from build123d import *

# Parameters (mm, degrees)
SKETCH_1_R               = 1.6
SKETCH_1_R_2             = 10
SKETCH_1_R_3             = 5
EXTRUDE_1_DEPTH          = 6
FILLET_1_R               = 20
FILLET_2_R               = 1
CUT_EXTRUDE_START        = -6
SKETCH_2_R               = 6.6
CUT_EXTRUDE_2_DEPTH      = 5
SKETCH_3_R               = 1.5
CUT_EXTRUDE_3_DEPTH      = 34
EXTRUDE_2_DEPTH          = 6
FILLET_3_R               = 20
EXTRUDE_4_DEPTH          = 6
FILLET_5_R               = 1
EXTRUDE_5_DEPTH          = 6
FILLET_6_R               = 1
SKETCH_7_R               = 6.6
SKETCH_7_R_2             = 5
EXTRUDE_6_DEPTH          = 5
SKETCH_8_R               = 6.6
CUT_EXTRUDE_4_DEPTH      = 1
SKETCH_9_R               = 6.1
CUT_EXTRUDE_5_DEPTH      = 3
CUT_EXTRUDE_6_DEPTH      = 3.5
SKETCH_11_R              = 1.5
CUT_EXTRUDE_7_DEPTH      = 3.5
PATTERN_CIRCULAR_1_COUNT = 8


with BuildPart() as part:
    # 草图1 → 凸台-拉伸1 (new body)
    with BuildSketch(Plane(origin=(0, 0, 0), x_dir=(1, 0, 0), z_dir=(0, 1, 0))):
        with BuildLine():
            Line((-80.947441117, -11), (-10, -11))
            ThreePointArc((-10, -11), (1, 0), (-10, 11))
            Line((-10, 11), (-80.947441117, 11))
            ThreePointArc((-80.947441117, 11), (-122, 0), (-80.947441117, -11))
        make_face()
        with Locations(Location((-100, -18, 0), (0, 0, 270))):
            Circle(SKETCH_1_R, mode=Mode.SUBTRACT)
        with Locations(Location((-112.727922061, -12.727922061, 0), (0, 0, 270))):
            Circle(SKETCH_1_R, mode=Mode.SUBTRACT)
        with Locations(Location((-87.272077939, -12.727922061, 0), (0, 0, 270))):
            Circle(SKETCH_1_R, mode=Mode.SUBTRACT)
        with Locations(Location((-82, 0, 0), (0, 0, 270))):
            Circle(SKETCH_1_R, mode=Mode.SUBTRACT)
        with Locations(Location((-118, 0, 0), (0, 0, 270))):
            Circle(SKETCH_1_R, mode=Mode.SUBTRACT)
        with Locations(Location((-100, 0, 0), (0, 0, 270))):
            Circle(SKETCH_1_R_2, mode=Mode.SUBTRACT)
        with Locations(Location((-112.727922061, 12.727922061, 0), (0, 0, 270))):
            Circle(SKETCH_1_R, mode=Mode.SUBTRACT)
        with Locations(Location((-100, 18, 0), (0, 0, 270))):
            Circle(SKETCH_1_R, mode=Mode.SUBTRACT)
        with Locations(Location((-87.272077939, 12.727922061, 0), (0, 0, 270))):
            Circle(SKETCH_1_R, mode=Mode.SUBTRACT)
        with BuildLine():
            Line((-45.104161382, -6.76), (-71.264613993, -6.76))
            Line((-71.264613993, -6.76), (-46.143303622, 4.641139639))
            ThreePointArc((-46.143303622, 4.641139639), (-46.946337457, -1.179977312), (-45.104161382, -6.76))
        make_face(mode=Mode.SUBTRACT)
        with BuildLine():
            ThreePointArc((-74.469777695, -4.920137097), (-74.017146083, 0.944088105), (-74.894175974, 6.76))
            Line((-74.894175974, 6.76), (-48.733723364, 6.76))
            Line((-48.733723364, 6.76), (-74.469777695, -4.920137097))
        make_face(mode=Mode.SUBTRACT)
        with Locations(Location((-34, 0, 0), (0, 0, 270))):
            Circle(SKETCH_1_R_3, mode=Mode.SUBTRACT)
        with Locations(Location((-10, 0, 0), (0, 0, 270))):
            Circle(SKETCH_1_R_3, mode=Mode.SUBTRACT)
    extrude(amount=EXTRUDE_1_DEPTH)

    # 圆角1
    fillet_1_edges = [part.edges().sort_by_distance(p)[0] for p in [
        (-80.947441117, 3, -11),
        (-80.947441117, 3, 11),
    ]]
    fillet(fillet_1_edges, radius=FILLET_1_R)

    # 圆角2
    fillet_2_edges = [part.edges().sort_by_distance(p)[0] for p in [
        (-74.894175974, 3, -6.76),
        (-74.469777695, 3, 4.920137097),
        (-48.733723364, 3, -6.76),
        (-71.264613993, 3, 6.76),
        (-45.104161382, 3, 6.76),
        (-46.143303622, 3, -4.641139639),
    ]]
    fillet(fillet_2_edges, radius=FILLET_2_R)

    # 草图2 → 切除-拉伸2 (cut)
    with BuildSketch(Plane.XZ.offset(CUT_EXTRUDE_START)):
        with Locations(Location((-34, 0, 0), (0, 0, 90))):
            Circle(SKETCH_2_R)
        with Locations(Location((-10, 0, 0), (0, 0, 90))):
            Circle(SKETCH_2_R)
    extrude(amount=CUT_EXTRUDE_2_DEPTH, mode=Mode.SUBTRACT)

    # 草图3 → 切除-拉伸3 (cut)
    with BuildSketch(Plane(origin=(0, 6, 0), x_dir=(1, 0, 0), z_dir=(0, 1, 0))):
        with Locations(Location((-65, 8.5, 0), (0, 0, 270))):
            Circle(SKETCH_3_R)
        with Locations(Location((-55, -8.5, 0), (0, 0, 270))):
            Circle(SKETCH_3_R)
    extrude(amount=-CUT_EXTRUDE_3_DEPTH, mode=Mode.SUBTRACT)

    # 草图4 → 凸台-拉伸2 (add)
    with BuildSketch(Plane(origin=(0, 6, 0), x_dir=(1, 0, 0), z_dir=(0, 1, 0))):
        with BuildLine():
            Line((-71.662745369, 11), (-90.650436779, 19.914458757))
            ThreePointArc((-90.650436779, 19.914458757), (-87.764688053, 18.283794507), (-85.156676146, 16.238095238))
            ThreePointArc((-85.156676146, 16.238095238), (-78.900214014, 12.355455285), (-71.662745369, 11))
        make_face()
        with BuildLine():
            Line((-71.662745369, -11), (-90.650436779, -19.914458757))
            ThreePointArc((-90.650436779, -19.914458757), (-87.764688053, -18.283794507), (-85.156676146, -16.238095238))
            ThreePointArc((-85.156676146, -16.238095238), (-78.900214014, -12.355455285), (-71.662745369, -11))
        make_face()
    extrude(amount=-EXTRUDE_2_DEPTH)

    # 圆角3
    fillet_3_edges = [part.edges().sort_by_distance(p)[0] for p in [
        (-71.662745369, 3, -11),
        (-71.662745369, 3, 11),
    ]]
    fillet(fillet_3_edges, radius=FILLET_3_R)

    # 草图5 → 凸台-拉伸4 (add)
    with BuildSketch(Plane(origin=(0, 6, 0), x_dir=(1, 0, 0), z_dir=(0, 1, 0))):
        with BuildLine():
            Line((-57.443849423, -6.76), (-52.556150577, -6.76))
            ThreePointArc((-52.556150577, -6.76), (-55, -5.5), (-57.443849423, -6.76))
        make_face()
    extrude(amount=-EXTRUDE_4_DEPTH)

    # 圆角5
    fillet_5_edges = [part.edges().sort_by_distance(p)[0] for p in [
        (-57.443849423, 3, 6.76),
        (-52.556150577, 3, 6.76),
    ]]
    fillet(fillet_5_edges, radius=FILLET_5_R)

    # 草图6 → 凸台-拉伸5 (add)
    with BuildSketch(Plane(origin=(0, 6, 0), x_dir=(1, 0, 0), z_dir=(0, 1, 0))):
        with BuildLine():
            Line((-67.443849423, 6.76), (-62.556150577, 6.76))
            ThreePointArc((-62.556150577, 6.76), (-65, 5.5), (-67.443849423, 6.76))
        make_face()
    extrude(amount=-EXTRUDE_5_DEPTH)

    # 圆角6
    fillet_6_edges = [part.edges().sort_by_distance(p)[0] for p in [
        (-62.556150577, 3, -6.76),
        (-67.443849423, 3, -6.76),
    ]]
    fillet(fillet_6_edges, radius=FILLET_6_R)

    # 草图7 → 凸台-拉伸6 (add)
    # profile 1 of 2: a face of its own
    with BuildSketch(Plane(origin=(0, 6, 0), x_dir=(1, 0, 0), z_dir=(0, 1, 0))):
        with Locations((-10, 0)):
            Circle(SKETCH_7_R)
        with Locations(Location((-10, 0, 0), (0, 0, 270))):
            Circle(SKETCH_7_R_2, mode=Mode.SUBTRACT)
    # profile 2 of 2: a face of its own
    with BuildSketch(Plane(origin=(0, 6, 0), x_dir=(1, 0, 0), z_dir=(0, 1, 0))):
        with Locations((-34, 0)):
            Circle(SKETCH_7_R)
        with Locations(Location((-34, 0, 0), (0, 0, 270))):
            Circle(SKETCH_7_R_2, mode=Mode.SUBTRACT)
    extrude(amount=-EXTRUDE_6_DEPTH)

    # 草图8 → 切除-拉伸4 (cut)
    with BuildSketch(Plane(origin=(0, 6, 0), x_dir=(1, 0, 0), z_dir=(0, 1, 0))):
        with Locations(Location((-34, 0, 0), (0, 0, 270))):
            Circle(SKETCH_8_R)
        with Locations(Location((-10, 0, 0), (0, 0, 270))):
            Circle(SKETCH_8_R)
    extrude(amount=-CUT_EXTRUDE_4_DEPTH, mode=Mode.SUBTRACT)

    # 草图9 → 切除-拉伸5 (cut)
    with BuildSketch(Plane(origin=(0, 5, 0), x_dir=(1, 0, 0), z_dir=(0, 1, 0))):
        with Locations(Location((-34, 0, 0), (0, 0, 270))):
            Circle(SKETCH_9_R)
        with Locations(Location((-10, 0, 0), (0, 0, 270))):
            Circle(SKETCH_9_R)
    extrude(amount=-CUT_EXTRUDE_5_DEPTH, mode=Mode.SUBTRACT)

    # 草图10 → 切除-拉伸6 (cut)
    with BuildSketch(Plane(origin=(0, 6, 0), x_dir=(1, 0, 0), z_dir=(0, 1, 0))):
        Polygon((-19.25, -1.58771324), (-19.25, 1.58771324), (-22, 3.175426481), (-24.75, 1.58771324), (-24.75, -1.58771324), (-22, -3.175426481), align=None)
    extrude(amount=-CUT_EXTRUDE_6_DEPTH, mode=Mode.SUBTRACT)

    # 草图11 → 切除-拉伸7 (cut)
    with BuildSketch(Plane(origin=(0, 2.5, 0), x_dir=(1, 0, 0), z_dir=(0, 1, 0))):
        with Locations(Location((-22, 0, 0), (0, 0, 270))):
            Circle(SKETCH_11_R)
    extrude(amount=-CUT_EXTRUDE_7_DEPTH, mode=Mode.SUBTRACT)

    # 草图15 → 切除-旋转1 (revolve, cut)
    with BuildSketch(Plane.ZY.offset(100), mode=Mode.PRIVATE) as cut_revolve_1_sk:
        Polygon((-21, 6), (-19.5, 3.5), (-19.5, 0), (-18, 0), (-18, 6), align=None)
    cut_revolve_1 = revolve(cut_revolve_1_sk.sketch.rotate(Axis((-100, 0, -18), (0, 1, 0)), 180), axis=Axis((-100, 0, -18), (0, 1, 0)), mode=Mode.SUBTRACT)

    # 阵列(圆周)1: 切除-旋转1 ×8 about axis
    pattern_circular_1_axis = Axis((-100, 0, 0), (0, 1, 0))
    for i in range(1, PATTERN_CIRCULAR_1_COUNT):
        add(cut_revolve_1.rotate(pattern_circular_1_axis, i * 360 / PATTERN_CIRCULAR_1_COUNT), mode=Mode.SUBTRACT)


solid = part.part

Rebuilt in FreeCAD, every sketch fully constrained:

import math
import FreeCAD as App
import Part
import Sketcher
Q = App.Units.Quantity


def edges_at(feature, points):
    """Names of the edges that pass closest to the given points."""
    edges = feature.Shape.Edges
    near = lambda p: min(range(len(edges)), key=lambda i: edges[i].distToShape(Part.Vertex(*p))[0])
    return sorted({f"Edge{near(p) + 1}" for p in points})

doc = App.newDocument("Part")
params = doc.addObject("Spreadsheet::Sheet", "Params")
for row, (alias, value) in enumerate([
    ("sketch1_diameter", "20 mm"),
    ("sketch1_diameter2", "10 mm"),
    ("sketch1_radius", "11 mm"),
    ("sketch1_radius2", "22 mm"),
    ("sketch1_radius3", "13 mm"),
    ("pad1_length", "6 mm"),
    ("fillet_radius", "20 mm"),
    ("fillet2_radius", "1 mm"),
    ("sketch2_diameter", "13.2 mm"),
    ("pocket1_length", "5 mm"),
    ("sketch3_diameter", "3 mm"),
    ("pocket2_length", "34 mm"),
    ("sketch4_radius", "22 mm"),
    ("sketch4_radius2", "20 mm"),
    ("pad2_length", "6 mm"),
    ("fillet3_radius", "20 mm"),
    ("sketch5_radius", "3 mm"),
    ("pad3_length", "6 mm"),
    ("fillet4_radius", "1 mm"),
    ("sketch6_radius", "3 mm"),
    ("pad4_length", "6 mm"),
    ("fillet5_radius", "1 mm"),
    ("sketch7_diameter", "10 mm"),
    ("sketch7_diameter2", "13.2 mm"),
    ("pad5_length", "5 mm"),
    ("sketch8_diameter", "13.2 mm"),
    ("pocket3_length", "1 mm"),
    ("sketch9_diameter", "12.2 mm"),
    ("pocket4_length", "3 mm"),
    ("pocket5_length", "3.5 mm"),
    ("sketch11_diameter", "3 mm"),
    ("pocket6_length", "3.5 mm"),
    ("sketch12_width", "6 mm"),
    ("sketch12_height", "3 mm"),
    ("sketch12_width2", "3.5 mm"),
    ("sketch12_height2", "1.5 mm"),
    ("groove_angle", "360 deg"),
], start=1):
    params.set(f"A{row}", alias)
    params.set(f"B{row}", "=" + value)
    params.setAlias(f"B{row}", alias)

body = doc.addObject("PartDesign::Body", "Body")

sketch1 = body.newObject("Sketcher::SketchObject", "Sketch")
sketch1.AttachmentSupport = (doc.getObject("XZ_Plane"), [""])
sketch1.MapMode = "FlatFace"
sketch1.addGeometry([
    Part.LineSegment(App.Vector(-80.947441, 11, 0), App.Vector(-10, 11, 0)),
    Part.ArcOfCircle(Part.Circle(App.Vector(-10, 0, 0), App.Vector(0, 0, 1), 11), math.radians(-90), math.radians(90)),
    Part.LineSegment(App.Vector(-10, -11, 0), App.Vector(-80.947441, -11, 0)),
    Part.ArcOfCircle(Part.Circle(App.Vector(-100, 0, 0), App.Vector(0, 0, 1), 22), math.radians(30), math.radians(330)),
    Part.Circle(App.Vector(-100, 18, 0), App.Vector(0, 0, 1), 1.6),
    Part.Circle(App.Vector(-112.727922, 12.727922, 0), App.Vector(0, 0, 1), 1.6),
    Part.Circle(App.Vector(-87.272078, 12.727922, 0), App.Vector(0, 0, 1), 1.6),
    Part.ArcOfCircle(Part.Circle(App.Vector(-34, 0, 0), App.Vector(0, 0, 1), 13), math.radians(148.667748), math.radians(200.916729)),
    Part.LineSegment(App.Vector(-45.104161, 6.76, 0), App.Vector(-71.264614, 6.76, 0)),
    Part.LineSegment(App.Vector(-71.264614, 6.76, 0), App.Vector(-46.143304, -4.64114, 0)),
    Part.Circle(App.Vector(-118, 0, 0), App.Vector(0, 0, 1), 1.6),
    Part.Circle(App.Vector(-100, 0, 0), App.Vector(0, 0, 1), 10),
    Part.Circle(App.Vector(-82, 0, 0), App.Vector(0, 0, 1), 1.6),
    Part.Circle(App.Vector(-112.727922, -12.727922, 0), App.Vector(0, 0, 1), 1.6),
    Part.Circle(App.Vector(-100, -18, 0), App.Vector(0, 0, 1), 1.6),
    Part.Circle(App.Vector(-87.272078, -12.727922, 0), App.Vector(0, 0, 1), 1.6),
    Part.LineSegment(App.Vector(-48.733723, -6.76, 0), App.Vector(-74.469778, 4.920137, 0)),
    Part.ArcOfCircle(Part.Circle(App.Vector(-100, 0, 0), App.Vector(0, 0, 1), 26), math.radians(-15.070062), math.radians(10.908204)),
    Part.LineSegment(App.Vector(-74.894176, -6.76, 0), App.Vector(-48.733723, -6.76, 0)),
    Part.Circle(App.Vector(-34, 0, 0), App.Vector(0, 0, 1), 5),
    Part.Circle(App.Vector(-10, 0, 0), App.Vector(0, 0, 1), 5),
], False)
sketch1.addConstraint([
    Sketcher.Constraint("Tangent", 0, 2, 1, 2),
    Sketcher.Constraint("Tangent", 1, 1, 2, 1),
    Sketcher.Constraint("Coincident", 2, 2, 3, 2),
    Sketcher.Constraint("Coincident", 3, 1, 0, 1),
    Sketcher.Constraint("Coincident", 7, 1, 8, 1),
    Sketcher.Constraint("Coincident", 8, 2, 9, 1),
    Sketcher.Constraint("Coincident", 9, 2, 7, 2),
    Sketcher.Constraint("Coincident", 16, 2, 17, 2),
    Sketcher.Constraint("Coincident", 17, 1, 18, 1),
    Sketcher.Constraint("Coincident", 18, 2, 16, 1),
    Sketcher.Constraint("Horizontal", 0),
    Sketcher.Constraint("Horizontal", 2),
    Sketcher.Constraint("Horizontal", 8),
    Sketcher.Constraint("Horizontal", 18),
    Sketcher.Constraint("Coincident", 11, 3, 3, 3),
    Sketcher.Constraint("Coincident", 17, 3, 3, 3),
    Sketcher.Constraint("Coincident", 19, 3, 7, 3),
    Sketcher.Constraint("Coincident", 20, 3, 1, 3),
    Sketcher.Constraint("Equal", 4, 5),
    Sketcher.Constraint("Equal", 5, 6),
    Sketcher.Constraint("Equal", 6, 10),
    Sketcher.Constraint("Equal", 10, 12),
    Sketcher.Constraint("Equal", 12, 13),
    Sketcher.Constraint("Equal", 13, 14),
    Sketcher.Constraint("Equal", 14, 15),
    Sketcher.Constraint("Equal", 19, 20),
    Sketcher.Constraint("Symmetric", 5, 3, 13, 3, -1),
    Sketcher.Constraint("Symmetric", 4, 3, 14, 3, -1),
    Sketcher.Constraint("Symmetric", 6, 3, 15, 3, -1),
    Sketcher.Constraint("Symmetric", 2, 2, 3, 1, -1),
    Sketcher.Constraint("PointOnObject", 7, 3, -1),
    Sketcher.Constraint("PointOnObject", 10, 3, -1),
    Sketcher.Constraint("PointOnObject", 12, 3, -1),
    Sketcher.Constraint("Parallel", 9, 16),
    Sketcher.Constraint("Horizontal", 5, 3, 6, 3),
    Sketcher.Constraint("Vertical", 3, 3, 4, 3),
    Sketcher.Constraint("Equal", 8, 18),
    Sketcher.Constraint("Diameter", 11, 20.0),
    Sketcher.Constraint("Diameter", 19, 10.0),
    Sketcher.Constraint("Radius", 1, 11.0),
    Sketcher.Constraint("Radius", 3, 22.0),
    Sketcher.Constraint("Radius", 7, 13.0),
    Sketcher.Constraint("Radius", 17, 26.0),
    Sketcher.Constraint("Diameter", 4, 3.2),
    Sketcher.Constraint("DistanceX", 1, 3, -1, 1, 10.0),
    Sketcher.Constraint("DistanceX", 3, 3, -1, 1, 100.0),
    Sketcher.Constraint("DistanceY", -1, 1, 4, 3, 18.0),
    Sketcher.Constraint("DistanceX", 7, 3, -1, 1, 34.0),
    Sketcher.Constraint("DistanceX", 10, 3, -1, 1, 118.0),
    Sketcher.Constraint("DistanceX", 12, 3, -1, 1, 82.0),
    Sketcher.Constraint("DistanceY", -1, 1, 7, 1, 6.76),
    Sketcher.Constraint("DistanceY", 17, 1, -1, 1, 6.76),
    Sketcher.Constraint("DistanceX", 6, 3, 16, 2, 12.8023),
    Sketcher.Constraint("DistanceX", 17, 1, 16, 2, 0.424398),
    Sketcher.Constraint("Distance", 9, 27.587429),
    Sketcher.Constraint("DistanceX", 5, 3, -1, 1, 112.727922),
    Sketcher.Constraint("DistanceY", -1, 1, 5, 3, 12.727922),
])
sketch1.setExpression("Constraints[37]", "Params.sketch1_diameter")
sketch1.setExpression("Constraints[38]", "Params.sketch1_diameter2")
sketch1.setExpression("Constraints[39]", "Params.sketch1_radius")
sketch1.setExpression("Constraints[40]", "Params.sketch1_radius2")
sketch1.setExpression("Constraints[41]", "Params.sketch1_radius3")
pad1 = body.newObject("PartDesign::Pad", "Pad")
pad1.Profile = sketch1
pad1.setExpression("Length", "Params.pad1_length")
pad1.Reversed = True
doc.recompute()

fillet = body.newObject("PartDesign::Fillet", "Fillet")
fillet.Base = (pad1, edges_at(pad1, [(-80.947, 3, -11), (-80.947, 3, 11)]))
fillet.setExpression("Radius", "Params.fillet_radius")
doc.recompute()

fillet2 = body.newObject("PartDesign::Fillet", "Fillet001")
fillet2.Base = (fillet, edges_at(fillet, [
    (-74.894, 3, -6.76),
    (-74.47, 3, 4.92),
    (-48.734, 3, -6.76),
    (-71.265, 3, 6.76),
    (-45.104, 3, 6.76),
    (-46.143, 3, -4.641),
]))
fillet2.setExpression("Radius", "Params.fillet2_radius")

sketch2 = body.newObject("Sketcher::SketchObject", "Sketch001")
sketch2.AttachmentSupport = (doc.getObject("XZ_Plane"), [""])
sketch2.MapMode = "FlatFace"
sketch2.AttachmentOffset = App.Placement(App.Vector(0, 0, -6), App.Rotation())
sketch2.addGeometry([
    Part.Circle(App.Vector(-34, 0, 0), App.Vector(0, 0, 1), 6.6),
    Part.Circle(App.Vector(-10, 0, 0), App.Vector(0, 0, 1), 6.6),
], False)
sketch2.addConstraint([
    Sketcher.Constraint("Equal", 0, 1),
    Sketcher.Constraint("PointOnObject", 0, 3, -1),
    Sketcher.Constraint("PointOnObject", 1, 3, -1),
    Sketcher.Constraint("Diameter", 0, 13.2),
    Sketcher.Constraint("DistanceX", 0, 3, -1, 1, 34.0),
    Sketcher.Constraint("DistanceX", 1, 3, -1, 1, 10.0),
])
sketch2.setExpression("Constraints[3]", "Params.sketch2_diameter")
pocket1 = body.newObject("PartDesign::Pocket", "Pocket")
pocket1.Profile = sketch2
pocket1.setExpression("Length", "Params.pocket1_length")
pocket1.Reversed = True

sketch3 = body.newObject("Sketcher::SketchObject", "Sketch002")
sketch3.AttachmentSupport = (doc.getObject("XZ_Plane"), [""])
sketch3.MapMode = "FlatFace"
sketch3.AttachmentOffset = App.Placement(App.Vector(0, 0, -6), App.Rotation())
sketch3.addGeometry([
    Part.Circle(App.Vector(-65, -8.5, 0), App.Vector(0, 0, 1), 1.5),
    Part.Circle(App.Vector(-55, 8.5, 0), App.Vector(0, 0, 1), 1.5),
], False)
sketch3.addConstraint([
    Sketcher.Constraint("Equal", 0, 1),
    Sketcher.Constraint("Diameter", 0, 3.0),
    Sketcher.Constraint("DistanceX", 0, 3, -1, 1, 65.0),
    Sketcher.Constraint("DistanceX", 1, 3, -1, 1, 55.0),
    Sketcher.Constraint("DistanceY", 0, 3, 1, 3, 17.0),
    Sketcher.Constraint("DistanceY", 0, 3, -1, 1, 8.5),
])
sketch3.setExpression("Constraints[1]", "Params.sketch3_diameter")
pocket2 = body.newObject("PartDesign::Pocket", "Pocket001")
pocket2.Profile = sketch3
pocket2.setExpression("Length", "Params.pocket2_length")
pocket2.Reversed = True

sketch4 = body.newObject("Sketcher::SketchObject", "Sketch003")
sketch4.AttachmentSupport = (doc.getObject("XZ_Plane"), [""])
sketch4.MapMode = "FlatFace"
sketch4.AttachmentOffset = App.Placement(App.Vector(0, 0, -6), App.Rotation())
sketch4.addGeometry([
    Part.LineSegment(App.Vector(-71.662745, -11, 0), App.Vector(-90.650437, -19.914459, 0)),
    Part.ArcOfCircle(Part.Circle(App.Vector(-100, 0, 0), App.Vector(0, 0, 1), 22), math.radians(-64.850593), math.radians(-47.569411)),
    Part.ArcOfCircle(Part.Circle(App.Vector(-71.662745, -31, 0), App.Vector(0, 0, 1), 20), math.radians(90), math.radians(132.430589)),
    Part.LineSegment(App.Vector(-90.650437, 19.914459, 0), App.Vector(-71.662745, 11, 0)),
    Part.ArcOfCircle(Part.Circle(App.Vector(-71.662745, 31, 0), App.Vector(0, 0, 1), 20), math.radians(-132.430589), math.radians(-90)),
    Part.ArcOfCircle(Part.Circle(App.Vector(-100, 0, 0), App.Vector(0, 0, 1), 22), math.radians(47.569411), math.radians(64.850593)),
], False)
sketch4.addConstraint([
    Sketcher.Constraint("Tangent", 0, 2, 1, 1),
    Sketcher.Constraint("Tangent", 1, 2, 2, 2),
    Sketcher.Constraint("Coincident", 2, 1, 0, 1),
    Sketcher.Constraint("Coincident", 3, 2, 4, 2),
    Sketcher.Constraint("Tangent", 4, 1, 5, 1),
    Sketcher.Constraint("Tangent", 5, 2, 3, 1),
    Sketcher.Constraint("Coincident", 5, 3, 1, 3),
    Sketcher.Constraint("Equal", 2, 4),
    Sketcher.Constraint("Equal", 1, 5),
    Sketcher.Constraint("Symmetric", 2, 3, 4, 3, -1),
    Sketcher.Constraint("Vertical", 4, 3, 2, 1),
    Sketcher.Constraint("Vertical", 2, 1, 3, 2),
    Sketcher.Constraint("Radius", 1, 22.0),
    Sketcher.Constraint("Radius", 2, 20.0),
    Sketcher.Constraint("DistanceX", 1, 3, -1, 1, 100.0),
    Sketcher.Constraint("DistanceY", 2, 3, -1, 1, 31.0),
])
sketch4.setExpression("Constraints[12]", "Params.sketch4_radius")
sketch4.setExpression("Constraints[13]", "Params.sketch4_radius2")
pad2 = body.newObject("PartDesign::Pad", "Pad001")
pad2.Profile = sketch4
pad2.setExpression("Length", "Params.pad2_length")
doc.recompute()

fillet3 = body.newObject("PartDesign::Fillet", "Fillet002")
fillet3.Base = (pad2, edges_at(pad2, [(-71.663, 3, -11), (-71.663, 3, 11)]))
fillet3.setExpression("Radius", "Params.fillet3_radius")

sketch5 = body.newObject("Sketcher::SketchObject", "Sketch004")
sketch5.AttachmentSupport = (doc.getObject("XZ_Plane"), [""])
sketch5.MapMode = "FlatFace"
sketch5.AttachmentOffset = App.Placement(App.Vector(0, 0, -6), App.Rotation())
sketch5.addGeometry([
    Part.LineSegment(App.Vector(-57.443849, 6.76, 0), App.Vector(-52.556151, 6.76, 0)),
    Part.ArcOfCircle(Part.Circle(App.Vector(-55, 8.5, 0), App.Vector(0, 0, 1), 3), math.radians(-144.549457), math.radians(-35.450543)),
], False)
sketch5.addConstraint([
    Sketcher.Constraint("Coincident", 0, 1, 1, 1),
    Sketcher.Constraint("Coincident", 1, 2, 0, 2),
    Sketcher.Constraint("Horizontal", 0),
    Sketcher.Constraint("Radius", 1, 3.0),
    Sketcher.Constraint("DistanceX", 1, 3, -1, 1, 55.0),
    Sketcher.Constraint("DistanceY", -1, 1, 1, 3, 8.5),
    Sketcher.Constraint("DistanceY", -1, 1, 0, 1, 6.76),
])
sketch5.setExpression("Constraints[3]", "Params.sketch5_radius")
pad3 = body.newObject("PartDesign::Pad", "Pad002")
pad3.Profile = sketch5
pad3.setExpression("Length", "Params.pad3_length")
doc.recompute()

fillet4 = body.newObject("PartDesign::Fillet", "Fillet003")
fillet4.Base = (pad3, edges_at(pad3, [(-57.444, 3, 6.76), (-52.556, 3, 6.76)]))
fillet4.setExpression("Radius", "Params.fillet4_radius")

sketch6 = body.newObject("Sketcher::SketchObject", "Sketch005")
sketch6.AttachmentSupport = (doc.getObject("XZ_Plane"), [""])
sketch6.MapMode = "FlatFace"
sketch6.AttachmentOffset = App.Placement(App.Vector(0, 0, -6), App.Rotation())
sketch6.addGeometry([
    Part.LineSegment(App.Vector(-62.556151, -6.76, 0), App.Vector(-67.443849, -6.76, 0)),
    Part.ArcOfCircle(Part.Circle(App.Vector(-65, -8.5, 0), App.Vector(0, 0, 1), 3), math.radians(35.450543), math.radians(144.549457)),
], False)
sketch6.addConstraint([
    Sketcher.Constraint("Coincident", 0, 1, 1, 1),
    Sketcher.Constraint("Coincident", 1, 2, 0, 2),
    Sketcher.Constraint("Horizontal", 0),
    Sketcher.Constraint("Radius", 1, 3.0),
    Sketcher.Constraint("DistanceX", 1, 3, -1, 1, 65.0),
    Sketcher.Constraint("DistanceY", 1, 3, -1, 1, 8.5),
    Sketcher.Constraint("DistanceY", 0, 1, -1, 1, 6.76),
])
sketch6.setExpression("Constraints[3]", "Params.sketch6_radius")
pad4 = body.newObject("PartDesign::Pad", "Pad003")
pad4.Profile = sketch6
pad4.setExpression("Length", "Params.pad4_length")
doc.recompute()

fillet5 = body.newObject("PartDesign::Fillet", "Fillet004")
fillet5.Base = (pad4, edges_at(pad4, [(-62.556, 3, -6.76), (-67.444, 3, -6.76)]))
fillet5.setExpression("Radius", "Params.fillet5_radius")

sketch7 = body.newObject("Sketcher::SketchObject", "Sketch006")
sketch7.AttachmentSupport = (doc.getObject("XZ_Plane"), [""])
sketch7.MapMode = "FlatFace"
sketch7.AttachmentOffset = App.Placement(App.Vector(0, 0, -6), App.Rotation())
sketch7.addGeometry([
    Part.Circle(App.Vector(-10, 0, 0), App.Vector(0, 0, 1), 6.6),
    Part.Circle(App.Vector(-10, 0, 0), App.Vector(0, 0, 1), 5),
    Part.Circle(App.Vector(-34, 0, 0), App.Vector(0, 0, 1), 6.6),
    Part.Circle(App.Vector(-34, 0, 0), App.Vector(0, 0, 1), 5),
], False)
sketch7.addConstraint([
    Sketcher.Constraint("Coincident", 1, 3, 0, 3),
    Sketcher.Constraint("Coincident", 3, 3, 2, 3),
    Sketcher.Constraint("Equal", 0, 2),
    Sketcher.Constraint("Equal", 1, 3),
    Sketcher.Constraint("PointOnObject", 0, 3, -1),
    Sketcher.Constraint("PointOnObject", 2, 3, -1),
    Sketcher.Constraint("Diameter", 1, 10.0),
    Sketcher.Constraint("Diameter", 0, 13.2),
    Sketcher.Constraint("DistanceX", 0, 3, -1, 1, 10.0),
    Sketcher.Constraint("DistanceX", 2, 3, -1, 1, 34.0),
])
sketch7.setExpression("Constraints[6]", "Params.sketch7_diameter")
sketch7.setExpression("Constraints[7]", "Params.sketch7_diameter2")
pad5 = body.newObject("PartDesign::Pad", "Pad004")
pad5.Profile = sketch7
pad5.setExpression("Length", "Params.pad5_length")

sketch8 = body.newObject("Sketcher::SketchObject", "Sketch007")
sketch8.AttachmentSupport = (doc.getObject("XZ_Plane"), [""])
sketch8.MapMode = "FlatFace"
sketch8.AttachmentOffset = App.Placement(App.Vector(0, 0, -6), App.Rotation())
sketch8.addGeometry([
    Part.Circle(App.Vector(-34, 0, 0), App.Vector(0, 0, 1), 6.6),
    Part.Circle(App.Vector(-10, 0, 0), App.Vector(0, 0, 1), 6.6),
], False)
sketch8.addConstraint([
    Sketcher.Constraint("Equal", 0, 1),
    Sketcher.Constraint("PointOnObject", 0, 3, -1),
    Sketcher.Constraint("PointOnObject", 1, 3, -1),
    Sketcher.Constraint("Diameter", 0, 13.2),
    Sketcher.Constraint("DistanceX", 0, 3, -1, 1, 34.0),
    Sketcher.Constraint("DistanceX", 1, 3, -1, 1, 10.0),
])
sketch8.setExpression("Constraints[3]", "Params.sketch8_diameter")
pocket3 = body.newObject("PartDesign::Pocket", "Pocket002")
pocket3.Profile = sketch8
pocket3.setExpression("Length", "Params.pocket3_length")
pocket3.Reversed = True

sketch9 = body.newObject("Sketcher::SketchObject", "Sketch008")
sketch9.AttachmentSupport = (doc.getObject("XZ_Plane"), [""])
sketch9.MapMode = "FlatFace"
sketch9.AttachmentOffset = App.Placement(App.Vector(0, 0, -5), App.Rotation())
sketch9.addGeometry([
    Part.Circle(App.Vector(-34, 0, 0), App.Vector(0, 0, 1), 6.1),
    Part.Circle(App.Vector(-10, 0, 0), App.Vector(0, 0, 1), 6.1),
], False)
sketch9.addConstraint([
    Sketcher.Constraint("Equal", 0, 1),
    Sketcher.Constraint("PointOnObject", 0, 3, -1),
    Sketcher.Constraint("PointOnObject", 1, 3, -1),
    Sketcher.Constraint("Diameter", 0, 12.2),
    Sketcher.Constraint("DistanceX", 0, 3, -1, 1, 34.0),
    Sketcher.Constraint("DistanceX", 1, 3, -1, 1, 10.0),
])
sketch9.setExpression("Constraints[3]", "Params.sketch9_diameter")
pocket4 = body.newObject("PartDesign::Pocket", "Pocket003")
pocket4.Profile = sketch9
pocket4.setExpression("Length", "Params.pocket4_length")
pocket4.Reversed = True

sketch10 = body.newObject("Sketcher::SketchObject", "Sketch009")
sketch10.AttachmentSupport = (doc.getObject("XZ_Plane"), [""])
sketch10.MapMode = "FlatFace"
sketch10.AttachmentOffset = App.Placement(App.Vector(0, 0, -6), App.Rotation())
sketch10.addGeometry([
    Part.LineSegment(App.Vector(-19.25, 1.587713, 0), App.Vector(-19.25, -1.587713, 0)),
    Part.LineSegment(App.Vector(-19.25, -1.587713, 0), App.Vector(-22, -3.175426, 0)),
    Part.LineSegment(App.Vector(-22, -3.175426, 0), App.Vector(-24.75, -1.587713, 0)),
    Part.LineSegment(App.Vector(-24.75, -1.587713, 0), App.Vector(-24.75, 1.587713, 0)),
    Part.LineSegment(App.Vector(-24.75, 1.587713, 0), App.Vector(-22, 3.175426, 0)),
    Part.LineSegment(App.Vector(-22, 3.175426, 0), App.Vector(-19.25, 1.587713, 0)),
], False)
sketch10.addConstraint([
    Sketcher.Constraint("Coincident", 0, 2, 1, 1),
    Sketcher.Constraint("Coincident", 1, 2, 2, 1),
    Sketcher.Constraint("Coincident", 2, 2, 3, 1),
    Sketcher.Constraint("Coincident", 3, 2, 4, 1),
    Sketcher.Constraint("Coincident", 4, 2, 5, 1),
    Sketcher.Constraint("Coincident", 5, 2, 0, 1),
    Sketcher.Constraint("Vertical", 0),
    Sketcher.Constraint("Vertical", 3),
    Sketcher.Constraint("Symmetric", 1, 2, 4, 2, -1),
    Sketcher.Constraint("Parallel", 1, 4),
    Sketcher.Constraint("Parallel", 2, 5),
    Sketcher.Constraint("Horizontal", 0, 2, 2, 2),
    Sketcher.Constraint("Horizontal", 3, 2, 5, 2),
    Sketcher.Constraint("Angle", 1, Q("-150 deg")),
    Sketcher.Constraint("DistanceX", 1, 2, -1, 1, 22.0),
    Sketcher.Constraint("DistanceX", 2, 2, 0, 2, 5.5),
    Sketcher.Constraint("DistanceY", 0, 2, 0, 1, 3.175426),
])
pocket5 = body.newObject("PartDesign::Pocket", "Pocket004")
pocket5.Profile = sketch10
pocket5.setExpression("Length", "Params.pocket5_length")
pocket5.Reversed = True

sketch11 = body.newObject("Sketcher::SketchObject", "Sketch010")
sketch11.AttachmentSupport = (doc.getObject("XZ_Plane"), [""])
sketch11.MapMode = "FlatFace"
sketch11.AttachmentOffset = App.Placement(App.Vector(0, 0, -2.5), App.Rotation())
sketch11.addGeometry(Part.Circle(App.Vector(-22, 0, 0), App.Vector(0, 0, 1), 1.5), False)
sketch11.addConstraint([
    Sketcher.Constraint("PointOnObject", 0, 3, -1),
    Sketcher.Constraint("Diameter", 0, 3.0),
    Sketcher.Constraint("DistanceX", 0, 3, -1, 1, 22.0),
])
sketch11.setExpression("Constraints[1]", "Params.sketch11_diameter")
pocket6 = body.newObject("PartDesign::Pocket", "Pocket005")
pocket6.Profile = sketch11
pocket6.setExpression("Length", "Params.pocket6_length")
pocket6.Reversed = True

sketch12 = body.newObject("Sketcher::SketchObject", "Sketch011")
sketch12.AttachmentSupport = (doc.getObject("YZ_Plane"), [""])
sketch12.MapMode = "FlatFace"
sketch12.AttachmentOffset = App.Placement(App.Vector(0, 0, -100), App.Rotation())
sketch12.addGeometry([
    Part.LineSegment(App.Vector(6, -21, 0), App.Vector(3.5, -19.5, 0)),
    Part.LineSegment(App.Vector(3.5, -19.5, 0), App.Vector(0, -19.5, 0)),
    Part.LineSegment(App.Vector(0, -19.5, 0), App.Vector(0, -18, 0)),
    Part.LineSegment(App.Vector(0, -18, 0), App.Vector(6, -18, 0)),
    Part.LineSegment(App.Vector(6, -18, 0), App.Vector(6, -21, 0)),
], False)
sketch12.addGeometry(Part.LineSegment(App.Vector(0, -18, 0), App.Vector(6, -18, 0)), True)
sketch12.addConstraint([
    Sketcher.Constraint("Coincident", 0, 2, 1, 1),
    Sketcher.Constraint("Coincident", 1, 2, 2, 1),
    Sketcher.Constraint("Coincident", 2, 2, 3, 1),
    Sketcher.Constraint("Coincident", 3, 2, 4, 1),
    Sketcher.Constraint("Coincident", 4, 2, 0, 1),
    Sketcher.Constraint("Horizontal", 1),
    Sketcher.Constraint("Vertical", 2),
    Sketcher.Constraint("Horizontal", 3),
    Sketcher.Constraint("Vertical", 4),
    Sketcher.Constraint("Horizontal", 5),
    Sketcher.Constraint("Coincident", 5, 1, 2, 2),
    Sketcher.Constraint("PointOnObject", 1, 2, -2),
    Sketcher.Constraint("Vertical", 4, 2, 5, 2),
    Sketcher.Constraint("DistanceX", 3, 1, 3, 2, 6.0),
    Sketcher.Constraint("DistanceY", 4, 2, 4, 1, 3.0),
    Sketcher.Constraint("DistanceX", 1, 2, 1, 1, 3.5),
    Sketcher.Constraint("DistanceY", 2, 1, 2, 2, 1.5),
    Sketcher.Constraint("DistanceY", 2, 2, -1, 1, 18.0),
])
sketch12.setExpression("Constraints[13]", "Params.sketch12_width")
sketch12.setExpression("Constraints[14]", "Params.sketch12_height")
sketch12.setExpression("Constraints[15]", "Params.sketch12_width2")
sketch12.setExpression("Constraints[16]", "Params.sketch12_height2")
groove = body.newObject("PartDesign::Groove", "Groove")
groove.Profile = sketch12
groove.ReferenceAxis = (sketch12, ["Axis0"])
groove.setExpression("Angle", "Params.groove_angle")
doc.recompute()

datumline = body.newObject("PartDesign::Line", "DatumLine")
datumline.Placement = App.Placement(App.Vector(-100, 0, 0), App.Rotation(App.Vector(0, 0, 1), App.Vector(0, 1, 0)))
polarpattern = body.newObject("PartDesign::PolarPattern", "PolarPattern")
polarpattern.Originals = [groove]
polarpattern.Axis = (datumline, [""])
polarpattern.Angle = 360
polarpattern.Occurrences = 8
body.Tip = polarpattern

doc.recompute()
